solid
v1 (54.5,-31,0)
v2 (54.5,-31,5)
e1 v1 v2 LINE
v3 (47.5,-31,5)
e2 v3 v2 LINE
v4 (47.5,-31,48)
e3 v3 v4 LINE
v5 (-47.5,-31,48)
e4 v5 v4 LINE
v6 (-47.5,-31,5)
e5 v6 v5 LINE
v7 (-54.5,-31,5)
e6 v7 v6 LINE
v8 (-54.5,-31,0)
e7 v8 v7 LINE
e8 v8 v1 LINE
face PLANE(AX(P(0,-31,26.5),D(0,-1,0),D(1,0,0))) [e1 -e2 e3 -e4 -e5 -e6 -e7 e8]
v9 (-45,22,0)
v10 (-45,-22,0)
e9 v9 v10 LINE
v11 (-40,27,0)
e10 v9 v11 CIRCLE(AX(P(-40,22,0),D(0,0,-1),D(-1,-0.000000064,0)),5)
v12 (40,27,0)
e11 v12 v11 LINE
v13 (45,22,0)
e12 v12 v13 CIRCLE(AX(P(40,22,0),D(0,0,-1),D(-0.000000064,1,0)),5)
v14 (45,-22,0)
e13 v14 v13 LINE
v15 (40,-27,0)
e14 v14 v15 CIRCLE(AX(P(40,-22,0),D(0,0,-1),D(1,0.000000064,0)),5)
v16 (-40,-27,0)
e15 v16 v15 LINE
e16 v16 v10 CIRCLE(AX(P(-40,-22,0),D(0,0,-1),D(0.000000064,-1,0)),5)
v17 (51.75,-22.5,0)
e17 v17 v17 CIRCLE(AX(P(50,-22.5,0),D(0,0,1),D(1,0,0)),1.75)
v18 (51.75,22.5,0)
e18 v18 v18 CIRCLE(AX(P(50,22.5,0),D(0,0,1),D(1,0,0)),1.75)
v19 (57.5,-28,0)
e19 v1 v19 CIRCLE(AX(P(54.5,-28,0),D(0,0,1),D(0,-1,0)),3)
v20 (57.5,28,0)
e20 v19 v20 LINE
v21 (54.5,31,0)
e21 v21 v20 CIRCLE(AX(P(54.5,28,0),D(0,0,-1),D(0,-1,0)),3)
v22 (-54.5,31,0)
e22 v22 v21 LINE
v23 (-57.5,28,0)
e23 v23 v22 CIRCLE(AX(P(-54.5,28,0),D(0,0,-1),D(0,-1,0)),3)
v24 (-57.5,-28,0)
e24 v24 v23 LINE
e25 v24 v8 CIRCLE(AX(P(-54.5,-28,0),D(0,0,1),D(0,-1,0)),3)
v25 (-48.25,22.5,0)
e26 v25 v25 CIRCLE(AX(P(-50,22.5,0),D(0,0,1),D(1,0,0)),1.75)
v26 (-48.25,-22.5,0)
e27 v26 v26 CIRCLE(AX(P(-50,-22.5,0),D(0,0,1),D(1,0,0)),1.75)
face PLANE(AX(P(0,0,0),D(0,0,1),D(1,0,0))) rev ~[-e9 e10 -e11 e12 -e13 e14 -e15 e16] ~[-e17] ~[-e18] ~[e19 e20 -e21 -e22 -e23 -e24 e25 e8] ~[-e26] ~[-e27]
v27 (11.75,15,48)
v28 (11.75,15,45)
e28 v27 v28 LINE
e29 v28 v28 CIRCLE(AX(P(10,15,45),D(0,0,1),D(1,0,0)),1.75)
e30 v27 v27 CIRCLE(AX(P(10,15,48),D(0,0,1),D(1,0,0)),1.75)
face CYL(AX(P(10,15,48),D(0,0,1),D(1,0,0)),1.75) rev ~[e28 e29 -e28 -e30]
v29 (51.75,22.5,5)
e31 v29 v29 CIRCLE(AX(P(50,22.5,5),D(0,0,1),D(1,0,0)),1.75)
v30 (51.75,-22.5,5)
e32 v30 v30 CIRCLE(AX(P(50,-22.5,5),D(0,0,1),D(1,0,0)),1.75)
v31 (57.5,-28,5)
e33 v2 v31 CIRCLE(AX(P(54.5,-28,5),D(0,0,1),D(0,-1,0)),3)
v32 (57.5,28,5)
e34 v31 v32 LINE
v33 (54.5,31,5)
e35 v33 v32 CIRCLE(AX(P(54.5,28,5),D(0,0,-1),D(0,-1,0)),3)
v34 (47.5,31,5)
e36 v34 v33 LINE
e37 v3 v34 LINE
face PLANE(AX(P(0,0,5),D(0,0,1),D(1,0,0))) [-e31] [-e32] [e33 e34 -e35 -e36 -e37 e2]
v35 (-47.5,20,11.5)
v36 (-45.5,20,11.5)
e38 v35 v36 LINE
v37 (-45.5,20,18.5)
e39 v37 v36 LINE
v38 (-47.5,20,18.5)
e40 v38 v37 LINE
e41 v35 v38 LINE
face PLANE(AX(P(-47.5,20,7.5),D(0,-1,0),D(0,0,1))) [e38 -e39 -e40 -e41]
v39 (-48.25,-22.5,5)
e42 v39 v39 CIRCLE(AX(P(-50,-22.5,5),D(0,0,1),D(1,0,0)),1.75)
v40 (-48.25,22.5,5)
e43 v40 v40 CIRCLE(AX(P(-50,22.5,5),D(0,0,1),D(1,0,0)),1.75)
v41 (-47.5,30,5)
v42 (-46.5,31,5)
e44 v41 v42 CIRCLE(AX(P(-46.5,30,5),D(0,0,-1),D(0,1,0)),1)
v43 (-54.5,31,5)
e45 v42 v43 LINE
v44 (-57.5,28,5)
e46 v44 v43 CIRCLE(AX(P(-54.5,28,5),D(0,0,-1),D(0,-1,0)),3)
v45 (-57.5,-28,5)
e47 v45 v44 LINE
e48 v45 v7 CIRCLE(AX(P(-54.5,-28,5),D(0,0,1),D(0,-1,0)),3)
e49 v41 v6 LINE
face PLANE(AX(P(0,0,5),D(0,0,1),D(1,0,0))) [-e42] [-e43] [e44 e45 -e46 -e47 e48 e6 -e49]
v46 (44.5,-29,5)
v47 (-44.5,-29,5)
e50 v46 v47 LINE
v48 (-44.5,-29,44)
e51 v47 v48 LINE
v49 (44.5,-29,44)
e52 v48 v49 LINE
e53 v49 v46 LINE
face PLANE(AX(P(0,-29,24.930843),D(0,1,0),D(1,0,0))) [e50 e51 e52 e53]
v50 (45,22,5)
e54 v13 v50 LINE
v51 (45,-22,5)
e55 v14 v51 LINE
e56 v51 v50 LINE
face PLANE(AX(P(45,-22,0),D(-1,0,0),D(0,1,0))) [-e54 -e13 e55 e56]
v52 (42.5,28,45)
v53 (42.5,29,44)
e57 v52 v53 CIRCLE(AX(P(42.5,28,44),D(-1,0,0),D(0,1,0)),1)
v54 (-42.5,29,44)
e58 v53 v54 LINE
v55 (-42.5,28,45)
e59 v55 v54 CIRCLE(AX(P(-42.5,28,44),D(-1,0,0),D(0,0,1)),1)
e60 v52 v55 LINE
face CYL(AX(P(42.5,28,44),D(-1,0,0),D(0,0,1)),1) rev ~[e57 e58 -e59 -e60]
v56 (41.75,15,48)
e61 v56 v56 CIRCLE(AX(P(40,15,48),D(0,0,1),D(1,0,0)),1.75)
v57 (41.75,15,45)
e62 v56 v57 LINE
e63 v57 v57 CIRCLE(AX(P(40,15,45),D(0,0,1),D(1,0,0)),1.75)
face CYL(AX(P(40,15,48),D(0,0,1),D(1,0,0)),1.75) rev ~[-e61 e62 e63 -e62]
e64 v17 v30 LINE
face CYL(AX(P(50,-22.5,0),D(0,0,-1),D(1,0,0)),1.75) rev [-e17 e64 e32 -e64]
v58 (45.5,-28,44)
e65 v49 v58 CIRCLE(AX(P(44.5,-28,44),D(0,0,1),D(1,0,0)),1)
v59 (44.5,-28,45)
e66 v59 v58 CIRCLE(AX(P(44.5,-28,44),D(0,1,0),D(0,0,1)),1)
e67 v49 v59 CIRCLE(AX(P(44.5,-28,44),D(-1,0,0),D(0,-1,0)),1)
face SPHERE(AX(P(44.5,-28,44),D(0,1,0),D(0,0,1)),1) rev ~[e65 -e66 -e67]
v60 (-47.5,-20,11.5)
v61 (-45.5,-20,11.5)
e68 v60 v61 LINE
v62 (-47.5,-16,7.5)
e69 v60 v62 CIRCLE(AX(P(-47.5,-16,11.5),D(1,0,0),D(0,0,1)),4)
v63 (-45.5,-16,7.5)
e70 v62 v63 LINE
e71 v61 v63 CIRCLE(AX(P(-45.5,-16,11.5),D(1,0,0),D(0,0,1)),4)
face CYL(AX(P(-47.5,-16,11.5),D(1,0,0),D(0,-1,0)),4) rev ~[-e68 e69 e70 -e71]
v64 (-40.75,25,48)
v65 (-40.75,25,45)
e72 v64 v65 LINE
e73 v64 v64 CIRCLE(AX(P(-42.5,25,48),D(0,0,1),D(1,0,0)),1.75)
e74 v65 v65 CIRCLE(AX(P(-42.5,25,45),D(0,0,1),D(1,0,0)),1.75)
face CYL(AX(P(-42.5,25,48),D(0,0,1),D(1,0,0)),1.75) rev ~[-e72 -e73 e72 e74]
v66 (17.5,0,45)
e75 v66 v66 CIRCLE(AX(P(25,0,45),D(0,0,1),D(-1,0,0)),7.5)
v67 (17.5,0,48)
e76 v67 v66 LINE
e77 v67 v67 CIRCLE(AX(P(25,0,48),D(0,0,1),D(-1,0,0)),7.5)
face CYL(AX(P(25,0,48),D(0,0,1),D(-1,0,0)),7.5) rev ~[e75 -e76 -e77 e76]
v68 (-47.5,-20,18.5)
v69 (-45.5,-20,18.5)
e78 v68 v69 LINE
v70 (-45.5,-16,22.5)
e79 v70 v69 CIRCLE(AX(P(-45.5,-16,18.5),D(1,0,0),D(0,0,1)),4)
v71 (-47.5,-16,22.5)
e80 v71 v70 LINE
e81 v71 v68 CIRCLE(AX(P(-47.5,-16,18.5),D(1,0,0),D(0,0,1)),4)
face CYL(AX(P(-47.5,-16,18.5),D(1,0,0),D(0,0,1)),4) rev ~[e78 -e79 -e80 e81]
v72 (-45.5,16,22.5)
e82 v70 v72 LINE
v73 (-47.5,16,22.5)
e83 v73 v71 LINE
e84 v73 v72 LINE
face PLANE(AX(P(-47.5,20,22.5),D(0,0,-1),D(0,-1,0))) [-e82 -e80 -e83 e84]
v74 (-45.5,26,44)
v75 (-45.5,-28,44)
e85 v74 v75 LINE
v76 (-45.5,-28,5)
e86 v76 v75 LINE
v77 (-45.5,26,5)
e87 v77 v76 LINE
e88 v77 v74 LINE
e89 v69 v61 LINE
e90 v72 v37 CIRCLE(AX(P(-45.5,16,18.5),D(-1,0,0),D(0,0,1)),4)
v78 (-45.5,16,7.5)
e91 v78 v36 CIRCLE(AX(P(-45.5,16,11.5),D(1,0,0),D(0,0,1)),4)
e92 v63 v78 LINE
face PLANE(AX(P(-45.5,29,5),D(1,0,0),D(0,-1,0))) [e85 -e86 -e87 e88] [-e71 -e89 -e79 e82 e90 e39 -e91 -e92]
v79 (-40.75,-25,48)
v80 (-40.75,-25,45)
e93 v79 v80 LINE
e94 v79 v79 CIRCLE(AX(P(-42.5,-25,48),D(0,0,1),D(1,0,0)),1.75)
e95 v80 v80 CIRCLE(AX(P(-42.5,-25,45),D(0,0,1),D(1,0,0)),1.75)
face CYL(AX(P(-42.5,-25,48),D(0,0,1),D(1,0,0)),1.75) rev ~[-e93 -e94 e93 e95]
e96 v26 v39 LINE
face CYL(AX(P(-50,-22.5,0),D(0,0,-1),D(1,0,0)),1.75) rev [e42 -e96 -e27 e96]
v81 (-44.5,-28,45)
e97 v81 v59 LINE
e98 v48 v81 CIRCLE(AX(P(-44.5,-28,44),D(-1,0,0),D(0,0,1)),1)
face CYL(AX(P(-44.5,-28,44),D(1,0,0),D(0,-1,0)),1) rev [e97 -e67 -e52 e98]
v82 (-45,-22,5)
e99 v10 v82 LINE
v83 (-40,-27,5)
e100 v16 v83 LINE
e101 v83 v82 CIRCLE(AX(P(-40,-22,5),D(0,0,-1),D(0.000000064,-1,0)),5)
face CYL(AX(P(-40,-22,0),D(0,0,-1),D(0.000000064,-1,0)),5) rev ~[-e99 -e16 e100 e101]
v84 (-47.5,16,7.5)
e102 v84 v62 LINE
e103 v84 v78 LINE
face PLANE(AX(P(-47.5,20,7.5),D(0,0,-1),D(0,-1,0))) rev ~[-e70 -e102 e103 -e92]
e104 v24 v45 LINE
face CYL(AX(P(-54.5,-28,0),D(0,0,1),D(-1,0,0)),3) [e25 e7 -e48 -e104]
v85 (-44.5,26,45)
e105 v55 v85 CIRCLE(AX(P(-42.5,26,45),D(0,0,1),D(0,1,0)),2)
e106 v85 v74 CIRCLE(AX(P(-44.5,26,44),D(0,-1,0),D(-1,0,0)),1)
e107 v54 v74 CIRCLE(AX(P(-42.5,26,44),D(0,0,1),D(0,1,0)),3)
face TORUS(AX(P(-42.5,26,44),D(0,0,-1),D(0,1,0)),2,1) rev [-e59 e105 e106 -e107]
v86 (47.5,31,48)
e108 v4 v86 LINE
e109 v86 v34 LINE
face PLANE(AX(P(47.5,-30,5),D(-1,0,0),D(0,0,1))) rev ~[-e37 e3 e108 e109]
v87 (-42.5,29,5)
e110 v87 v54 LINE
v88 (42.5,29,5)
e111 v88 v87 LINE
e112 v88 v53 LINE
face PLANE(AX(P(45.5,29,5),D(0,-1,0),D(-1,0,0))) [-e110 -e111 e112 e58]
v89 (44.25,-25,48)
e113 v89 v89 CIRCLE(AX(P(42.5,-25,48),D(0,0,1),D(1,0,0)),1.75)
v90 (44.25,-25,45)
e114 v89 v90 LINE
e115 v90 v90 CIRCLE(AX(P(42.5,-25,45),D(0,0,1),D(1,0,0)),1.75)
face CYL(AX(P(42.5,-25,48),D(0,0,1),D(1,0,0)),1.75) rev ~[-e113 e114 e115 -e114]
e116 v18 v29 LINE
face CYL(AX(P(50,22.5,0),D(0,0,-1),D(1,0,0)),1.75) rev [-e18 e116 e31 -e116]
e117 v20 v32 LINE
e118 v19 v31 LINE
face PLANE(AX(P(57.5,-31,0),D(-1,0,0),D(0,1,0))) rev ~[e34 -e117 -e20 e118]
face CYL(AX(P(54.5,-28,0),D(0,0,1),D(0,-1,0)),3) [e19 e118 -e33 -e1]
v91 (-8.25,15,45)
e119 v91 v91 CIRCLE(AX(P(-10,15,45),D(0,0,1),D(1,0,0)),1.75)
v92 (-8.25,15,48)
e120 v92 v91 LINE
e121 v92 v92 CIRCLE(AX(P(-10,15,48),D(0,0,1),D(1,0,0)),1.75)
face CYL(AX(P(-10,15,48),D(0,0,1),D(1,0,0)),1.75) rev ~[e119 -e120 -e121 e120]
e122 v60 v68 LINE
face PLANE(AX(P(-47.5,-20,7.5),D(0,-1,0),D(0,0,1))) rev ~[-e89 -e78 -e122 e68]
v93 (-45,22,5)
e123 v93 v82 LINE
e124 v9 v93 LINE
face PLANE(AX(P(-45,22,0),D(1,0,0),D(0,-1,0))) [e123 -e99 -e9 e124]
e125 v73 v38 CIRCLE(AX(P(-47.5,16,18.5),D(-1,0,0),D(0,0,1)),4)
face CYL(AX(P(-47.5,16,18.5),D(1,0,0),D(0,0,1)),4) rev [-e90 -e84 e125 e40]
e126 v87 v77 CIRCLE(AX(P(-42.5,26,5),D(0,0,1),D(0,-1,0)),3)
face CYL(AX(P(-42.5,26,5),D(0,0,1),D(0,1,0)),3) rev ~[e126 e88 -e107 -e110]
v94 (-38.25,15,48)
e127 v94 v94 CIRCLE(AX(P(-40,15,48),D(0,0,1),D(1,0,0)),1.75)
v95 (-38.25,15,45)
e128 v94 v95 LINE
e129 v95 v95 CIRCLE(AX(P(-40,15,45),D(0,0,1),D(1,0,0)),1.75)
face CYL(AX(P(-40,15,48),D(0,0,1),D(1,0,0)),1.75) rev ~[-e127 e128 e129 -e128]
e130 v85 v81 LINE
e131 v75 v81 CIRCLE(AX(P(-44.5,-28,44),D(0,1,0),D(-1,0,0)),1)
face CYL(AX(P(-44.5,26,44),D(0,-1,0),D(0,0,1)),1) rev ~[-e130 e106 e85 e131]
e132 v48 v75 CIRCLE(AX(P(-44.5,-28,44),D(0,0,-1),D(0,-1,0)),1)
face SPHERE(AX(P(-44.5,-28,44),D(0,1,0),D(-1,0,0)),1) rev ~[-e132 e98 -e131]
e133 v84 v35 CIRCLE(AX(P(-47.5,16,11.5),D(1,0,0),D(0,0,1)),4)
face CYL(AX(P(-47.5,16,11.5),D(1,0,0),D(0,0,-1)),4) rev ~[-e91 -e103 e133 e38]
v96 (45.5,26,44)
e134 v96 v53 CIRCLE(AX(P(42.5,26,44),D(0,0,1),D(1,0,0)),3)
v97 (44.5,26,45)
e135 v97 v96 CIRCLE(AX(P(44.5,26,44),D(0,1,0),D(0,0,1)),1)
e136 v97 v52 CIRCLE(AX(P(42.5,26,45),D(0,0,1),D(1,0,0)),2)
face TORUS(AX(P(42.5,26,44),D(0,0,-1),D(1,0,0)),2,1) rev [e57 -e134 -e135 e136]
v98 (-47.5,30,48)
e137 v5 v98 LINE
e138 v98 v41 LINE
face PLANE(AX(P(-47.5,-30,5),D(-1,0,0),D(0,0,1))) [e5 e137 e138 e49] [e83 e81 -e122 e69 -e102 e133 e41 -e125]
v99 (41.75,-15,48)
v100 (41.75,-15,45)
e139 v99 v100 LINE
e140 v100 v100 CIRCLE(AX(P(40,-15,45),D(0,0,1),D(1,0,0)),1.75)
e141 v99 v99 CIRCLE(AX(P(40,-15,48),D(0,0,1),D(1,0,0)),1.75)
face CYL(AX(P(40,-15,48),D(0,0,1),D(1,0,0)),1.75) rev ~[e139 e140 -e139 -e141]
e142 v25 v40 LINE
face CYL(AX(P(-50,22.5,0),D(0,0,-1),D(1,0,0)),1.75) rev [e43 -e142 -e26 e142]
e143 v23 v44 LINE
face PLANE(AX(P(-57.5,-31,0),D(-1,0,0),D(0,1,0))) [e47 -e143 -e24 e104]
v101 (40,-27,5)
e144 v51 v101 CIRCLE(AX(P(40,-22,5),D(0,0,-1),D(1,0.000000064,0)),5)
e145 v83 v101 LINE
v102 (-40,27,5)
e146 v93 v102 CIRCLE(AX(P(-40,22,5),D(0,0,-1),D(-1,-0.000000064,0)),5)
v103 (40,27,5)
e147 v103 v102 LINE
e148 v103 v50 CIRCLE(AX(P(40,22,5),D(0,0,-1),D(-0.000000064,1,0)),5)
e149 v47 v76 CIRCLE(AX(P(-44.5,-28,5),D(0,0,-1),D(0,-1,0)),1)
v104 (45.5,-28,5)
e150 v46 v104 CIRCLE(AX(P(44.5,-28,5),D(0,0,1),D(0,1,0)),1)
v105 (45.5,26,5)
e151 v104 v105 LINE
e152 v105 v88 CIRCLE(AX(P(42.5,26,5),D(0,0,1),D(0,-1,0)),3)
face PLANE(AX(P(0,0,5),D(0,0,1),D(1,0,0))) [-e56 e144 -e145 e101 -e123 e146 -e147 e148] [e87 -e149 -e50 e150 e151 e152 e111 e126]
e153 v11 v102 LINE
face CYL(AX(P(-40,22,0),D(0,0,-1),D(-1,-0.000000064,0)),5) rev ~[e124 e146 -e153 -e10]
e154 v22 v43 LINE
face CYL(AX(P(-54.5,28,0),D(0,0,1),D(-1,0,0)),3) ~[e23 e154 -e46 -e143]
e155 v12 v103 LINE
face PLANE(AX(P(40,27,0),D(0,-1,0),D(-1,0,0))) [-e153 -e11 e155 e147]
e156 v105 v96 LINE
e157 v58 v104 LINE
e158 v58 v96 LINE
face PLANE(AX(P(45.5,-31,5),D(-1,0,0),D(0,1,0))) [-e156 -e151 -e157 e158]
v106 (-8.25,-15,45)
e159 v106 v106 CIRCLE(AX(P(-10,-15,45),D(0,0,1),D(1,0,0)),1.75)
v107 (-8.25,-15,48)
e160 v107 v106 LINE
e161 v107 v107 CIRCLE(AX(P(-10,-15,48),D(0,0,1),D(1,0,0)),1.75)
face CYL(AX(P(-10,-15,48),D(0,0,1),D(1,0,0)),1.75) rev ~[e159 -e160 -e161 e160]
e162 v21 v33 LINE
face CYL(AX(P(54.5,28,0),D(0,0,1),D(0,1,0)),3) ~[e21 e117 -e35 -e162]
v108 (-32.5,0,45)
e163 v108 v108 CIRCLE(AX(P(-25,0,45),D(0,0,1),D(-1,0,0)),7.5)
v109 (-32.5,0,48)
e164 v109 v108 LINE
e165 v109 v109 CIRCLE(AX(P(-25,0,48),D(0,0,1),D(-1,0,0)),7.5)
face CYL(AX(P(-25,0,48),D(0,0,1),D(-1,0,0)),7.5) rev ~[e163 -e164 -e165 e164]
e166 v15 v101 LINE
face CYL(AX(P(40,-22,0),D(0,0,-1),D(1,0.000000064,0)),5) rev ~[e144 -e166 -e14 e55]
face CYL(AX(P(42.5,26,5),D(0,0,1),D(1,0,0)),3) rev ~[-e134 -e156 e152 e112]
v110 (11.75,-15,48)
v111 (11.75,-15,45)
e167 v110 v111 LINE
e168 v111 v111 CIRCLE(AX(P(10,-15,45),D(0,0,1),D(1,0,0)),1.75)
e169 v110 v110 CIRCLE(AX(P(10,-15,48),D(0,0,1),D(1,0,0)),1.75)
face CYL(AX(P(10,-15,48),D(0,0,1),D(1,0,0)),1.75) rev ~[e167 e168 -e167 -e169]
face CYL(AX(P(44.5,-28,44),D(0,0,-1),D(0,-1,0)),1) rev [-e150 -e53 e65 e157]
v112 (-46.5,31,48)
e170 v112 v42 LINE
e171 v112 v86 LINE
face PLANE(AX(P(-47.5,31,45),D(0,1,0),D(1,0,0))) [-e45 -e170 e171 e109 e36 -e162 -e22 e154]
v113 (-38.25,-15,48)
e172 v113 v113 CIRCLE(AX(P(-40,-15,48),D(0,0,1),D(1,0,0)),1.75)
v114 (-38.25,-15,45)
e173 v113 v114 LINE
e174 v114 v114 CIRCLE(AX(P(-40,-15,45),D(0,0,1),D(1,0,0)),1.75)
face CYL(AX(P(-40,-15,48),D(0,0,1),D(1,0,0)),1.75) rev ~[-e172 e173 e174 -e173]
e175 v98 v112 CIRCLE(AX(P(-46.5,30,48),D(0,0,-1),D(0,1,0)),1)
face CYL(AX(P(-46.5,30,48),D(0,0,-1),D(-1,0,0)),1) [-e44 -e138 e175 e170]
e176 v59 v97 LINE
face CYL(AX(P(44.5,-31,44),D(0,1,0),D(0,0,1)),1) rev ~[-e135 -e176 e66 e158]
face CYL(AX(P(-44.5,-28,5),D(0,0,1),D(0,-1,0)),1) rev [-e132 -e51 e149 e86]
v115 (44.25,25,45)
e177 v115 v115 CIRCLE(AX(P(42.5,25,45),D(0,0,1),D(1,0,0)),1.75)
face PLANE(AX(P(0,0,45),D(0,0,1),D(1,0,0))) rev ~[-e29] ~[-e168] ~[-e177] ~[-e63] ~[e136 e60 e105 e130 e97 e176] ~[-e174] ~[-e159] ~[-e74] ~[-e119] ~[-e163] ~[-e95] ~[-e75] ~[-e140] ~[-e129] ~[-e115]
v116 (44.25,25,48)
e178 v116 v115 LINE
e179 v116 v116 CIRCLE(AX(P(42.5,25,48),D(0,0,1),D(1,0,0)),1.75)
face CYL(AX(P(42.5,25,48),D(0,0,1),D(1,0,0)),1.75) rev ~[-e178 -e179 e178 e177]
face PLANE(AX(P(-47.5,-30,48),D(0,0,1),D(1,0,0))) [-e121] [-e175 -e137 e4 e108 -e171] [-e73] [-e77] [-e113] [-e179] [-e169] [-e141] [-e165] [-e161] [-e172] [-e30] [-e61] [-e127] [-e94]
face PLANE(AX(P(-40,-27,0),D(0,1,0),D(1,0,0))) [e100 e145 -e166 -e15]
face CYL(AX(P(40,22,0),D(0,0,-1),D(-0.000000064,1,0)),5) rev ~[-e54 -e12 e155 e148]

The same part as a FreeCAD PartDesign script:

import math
import FreeCAD as App
import Part
import Sketcher

V = App.Vector
Q = App.Units.Quantity


def edges_at(feature, points):
    """Names of the edges that pass closest to the given points."""
    edges = feature.Shape.Edges
    near = lambda p: min(range(len(edges)), key=lambda i: edges[i].distToShape(Part.Vertex(*p))[0])
    return sorted({f"Edge{near(p) + 1}" for p in points})

doc = App.newDocument("Part")
body = doc.addObject("PartDesign::Body", "Body")

# Sketch on XY plane
sketch1 = body.newObject("Sketcher::SketchObject", "Sketch")
sketch1.AttachmentSupport = (doc.getObject("XY_Plane"), [""])
sketch1.MapMode = "FlatFace"
sketch1.addGeometry([
    Part.LineSegment(V(-57.5, 31, 0), V(-57.5, -31, 0)),  # 0
    Part.LineSegment(V(-57.5, -31, 0), V(57.5, -31, 0)),  # 1
    Part.LineSegment(V(57.5, -31, 0), V(57.5, 31, 0)),  # 2
    Part.LineSegment(V(57.5, 31, 0), V(-57.5, 31, 0)),  # 3
    Part.Circle(V(-50, -22.5, 0), V(0, 0, 1), 1.8),  # 4
    Part.Circle(V(50, -22.5, 0), V(0, 0, 1), 1.8),  # 5
    Part.ArcOfCircle(Part.Circle(V(-40.5, 12, 0), V(0, 0, 1), 3), math.radians(90), math.radians(180)),  # 6
    Part.LineSegment(V(-40.5, 15, 0), V(-31.5, 15, 0)),  # 7
    Part.ArcOfCircle(Part.Circle(V(-31.5, 12, 0), V(0, 0, 1), 3), math.radians(0), math.radians(90)),  # 8
    Part.LineSegment(V(-28.5, 12, 0), V(-28.5, -12, 0)),  # 9
    Part.ArcOfCircle(Part.Circle(V(-31.5, -12, 0), V(0, 0, 1), 3), math.radians(-90), math.radians(0)),  # 10
    Part.LineSegment(V(-31.5, -15, 0), V(-40.5, -15, 0)),  # 11
    Part.ArcOfCircle(Part.Circle(V(-40.5, -12, 0), V(0, 0, 1), 3), math.radians(-180), math.radians(-90)),  # 12
    Part.LineSegment(V(-43.5, -12, 0), V(-43.5, 12, 0)),  # 13
    Part.Circle(V(-50, 22.5, 0), V(0, 0, 1), 1.8),  # 14
    Part.Circle(V(50, 22.5, 0), V(0, 0, 1), 1.8),  # 15
], False)
sketch1.addConstraint([
    Sketcher.Constraint("Coincident", 0, 2, 1, 1),
    Sketcher.Constraint("Coincident", 1, 2, 2, 1),
    Sketcher.Constraint("Coincident", 2, 2, 3, 1),
    Sketcher.Constraint("Coincident", 3, 2, 0, 1),
    Sketcher.Constraint("Tangent", 6, 1, 7, 1),
    Sketcher.Constraint("Tangent", 7, 2, 8, 2),
    Sketcher.Constraint("Tangent", 8, 1, 9, 1),
    Sketcher.Constraint("Tangent", 9, 2, 10, 2),
    Sketcher.Constraint("Tangent", 10, 1, 11, 1),
    Sketcher.Constraint("Tangent", 11, 2, 12, 2),
    Sketcher.Constraint("Tangent", 12, 1, 13, 1),
    Sketcher.Constraint("Tangent", 13, 2, 6, 2),
    Sketcher.Constraint("Vertical", 0),
    Sketcher.Constraint("Horizontal", 1),
    Sketcher.Constraint("Vertical", 2),
    Sketcher.Constraint("Horizontal", 3),
    Sketcher.Constraint("Horizontal", 7),
    Sketcher.Constraint("Vertical", 9),
    Sketcher.Constraint("Horizontal", 11),
    Sketcher.Constraint("Vertical", 13),
    Sketcher.Constraint("Equal", 4, 5),
    Sketcher.Constraint("Equal", 6, 8),
    Sketcher.Constraint("Equal", 8, 10),
    Sketcher.Constraint("Equal", 10, 12),
    Sketcher.Constraint("Equal", 5, 14),
    Sketcher.Constraint("Equal", 14, 15),
    Sketcher.Constraint("Symmetric", 5, 3, 14, 3, -1, 1),
    Sketcher.Constraint("Symmetric", 4, 3, 15, 3, -1, 1),
    Sketcher.Constraint("Symmetric", 0, 2, 2, 2, -1, 1),
    Sketcher.Constraint("Symmetric", 4, 3, 5, 3, -2),
    Sketcher.Constraint("Radius", 6, Q("3.000001 mm")),
    Sketcher.Constraint("Diameter", 4, Q("3.5 mm")),
    Sketcher.Constraint("DistanceX", 1, 1, 1, 2, Q("115 mm")),
    Sketcher.Constraint("DistanceX", 7, 1, 7, 2, Q("9 mm")),
    Sketcher.Constraint("DistanceY", 0, 2, 0, 1, Q("62 mm")),
    Sketcher.Constraint("DistanceY", 9, 2, 9, 1, Q("24 mm")),
    Sketcher.Constraint("DistanceX", 4, 3, -1, 1, Q("50 mm")),
    Sketcher.Constraint("DistanceY", -1, 1, 6, 3, Q("11.999999 mm")),
    Sketcher.Constraint("DistanceY", 4, 3, 14, 3, Q("45 mm")),
    Sketcher.Constraint("DistanceX", 0, 2, 12, 3, Q("17.000001 mm")),
])
pad1 = body.newObject("PartDesign::Pad", "Pad")
pad1.Profile = sketch1
pad1.Length = 5
doc.recompute()

fillet = body.newObject("PartDesign::Fillet", "Fillet")
fillet.Base = (pad1, edges_at(pad1, [
    (-36, -15, 0),
    (-29.379, -14.121, 0),
    (-28.5, 0, 0),
    (-42.621, -14.121, 0),
    (-43.5, 0, 0),
    (-42.621, 14.121, 0),
    (-36, 15, 0),
    (-29.379, 14.121, 0),
]))
fillet.Radius = 1
doc.recompute()

fillet2 = body.newObject("PartDesign::Fillet", "Fillet001")
fillet2.Base = (fillet, edges_at(fillet, [
    (-43.5, 0, 5),
    (-42.621, -14.121, 5),
    (-36, -15, 5),
    (-29.379, -14.121, 5),
    (-28.5, 0, 5),
    (-29.379, 14.121, 5),
    (-36, 15, 5),
    (-42.621, 14.121, 5),
]))
fillet2.Radius = 1
doc.recompute()

fillet3 = body.newObject("PartDesign::Fillet", "Fillet002")
fillet3.Base = (fillet2, edges_at(fillet2, [
    (-57.5, -31, 2.5),
    (-57.5, 31, 2.5),
    (57.5, -31, 2.5),
    (57.5, 31, 2.5),
]))
fillet3.Radius = 3

# Sketch on XY plane
sketch2 = body.newObject("Sketcher::SketchObject", "Sketch001")
sketch2.AttachmentSupport = (doc.getObject("XY_Plane"), [""])
sketch2.MapMode = "FlatFace"
sketch2.AttachmentOffset = App.Placement(V(0, 0, 5), App.Rotation())
sketch2.addGeometry([
    Part.LineSegment(V(47.5, 31, 0), V(-47.5, 31, 0)),  # 0
    Part.LineSegment(V(-47.5, 31, 0), V(-47.5, -31, 0)),  # 1
    Part.LineSegment(V(-47.5, -31, 0), V(-45.5, -31, 0)),  # 2
    Part.LineSegment(V(-45.5, -31, 0), V(-45.5, 29, 0)),  # 3
    Part.LineSegment(V(-45.5, 29, 0), V(45.5, 29, 0)),  # 4
    Part.LineSegment(V(45.5, 29, 0), V(45.5, -31, 0)),  # 5
    Part.LineSegment(V(45.5, -31, 0), V(47.5, -31, 0)),  # 6
    Part.LineSegment(V(47.5, -31, 0), V(47.5, 31, 0)),  # 7
], False)
sketch2.addConstraint([
    Sketcher.Constraint("Coincident", 0, 2, 1, 1),
    Sketcher.Constraint("Coincident", 1, 2, 2, 1),
    Sketcher.Constraint("Coincident", 2, 2, 3, 1),
    Sketcher.Constraint("Coincident", 3, 2, 4, 1),
    Sketcher.Constraint("Coincident", 4, 2, 5, 1),
    Sketcher.Constraint("Coincident", 5, 2, 6, 1),
    Sketcher.Constraint("Coincident", 6, 2, 7, 1),
    Sketcher.Constraint("Coincident", 7, 2, 0, 1),
    Sketcher.Constraint("Horizontal", 0),
    Sketcher.Constraint("Vertical", 1),
    Sketcher.Constraint("Horizontal", 2),
    Sketcher.Constraint("Vertical", 3),
    Sketcher.Constraint("Horizontal", 4),
    Sketcher.Constraint("Vertical", 5),
    Sketcher.Constraint("Horizontal", 6),
    Sketcher.Constraint("Vertical", 7),
    Sketcher.Constraint("Symmetric", 0, 2, 6, 2, -1, 1),
    Sketcher.Constraint("Symmetric", 2, 2, 5, 2, -2),
    Sketcher.Constraint("DistanceX", 0, 2, 0, 1, Q("95 mm")),
    Sketcher.Constraint("DistanceX", 2, 1, 2, 2, Q("2 mm")),
    Sketcher.Constraint("DistanceY", 1, 2, 1, 1, Q("62 mm")),
    Sketcher.Constraint("DistanceY", 3, 1, 3, 2, Q("60 mm")),
])
pad2 = body.newObject("PartDesign::Pad", "Pad001")
pad2.Profile = sketch2
pad2.Length = 40

# Sketch on XY plane
sketch3 = body.newObject("Sketcher::SketchObject", "Sketch002")
sketch3.AttachmentSupport = (doc.getObject("XY_Plane"), [""])
sketch3.MapMode = "FlatFace"
sketch3.AttachmentOffset = App.Placement(V(0, 0, 45), App.Rotation())
sketch3.addGeometry([
    Part.LineSegment(V(-48, 31, 0), V(-48, -31, 0)),
    Part.LineSegment(V(-48, -31, 0), V(48, -31, 0)),
    Part.LineSegment(V(48, -31, 0), V(48, 31, 0)),
    Part.LineSegment(V(48, 31, 0), V(-48, 31, 0)),
], False)
sketch3.addConstraint([
    Sketcher.Constraint("Coincident", 0, 2, 1, 1),
    Sketcher.Constraint("Coincident", 1, 2, 2, 1),
    Sketcher.Constraint("Coincident", 2, 2, 3, 1),
    Sketcher.Constraint("Coincident", 3, 2, 0, 1),
    Sketcher.Constraint("Vertical", 0),
    Sketcher.Constraint("Horizontal", 1),
    Sketcher.Constraint("Vertical", 2),
    Sketcher.Constraint("Horizontal", 3),
    Sketcher.Constraint("Symmetric", 0, 2, 2, 2, -1, 1),
    Sketcher.Constraint("DistanceX", 1, 1, 1, 2, Q("95 mm")),
    Sketcher.Constraint("DistanceY", 0, 2, 0, 1, Q("62 mm")),
])
pad3 = body.newObject("PartDesign::Pad", "Pad002")
pad3.Profile = sketch3
pad3.Length = 3
doc.recompute()

fillet4 = body.newObject("PartDesign::Fillet", "Fillet003")
fillet4.Base = (pad3, edges_at(pad3, [(-45.5, 29, 25), (45.5, 29, 25)]))
fillet4.Radius = 3
doc.recompute()

fillet5 = body.newObject("PartDesign::Fillet", "Fillet004")
fillet5.Base = (fillet4, edges_at(fillet4, [
    (-47.5, 31, 26.5),
    (-45.5, -2.5, 45),
    (-44.621, 28.121, 45),
    (0, 29, 45),
    (44.621, 28.121, 45),
    (45.5, -2.5, 45),
]))
fillet5.Radius = 1

# Sketch on YZ plane
sketch4 = body.newObject("Sketcher::SketchObject", "Sketch003")
sketch4.AttachmentSupport = (doc.getObject("YZ_Plane"), [""])
sketch4.MapMode = "FlatFace"
sketch4.AttachmentOffset = App.Placement(V(0, 0, -47.5), App.Rotation())
sketch4.addGeometry([
    Part.LineSegment(V(20, 22, 0), V(20, 8, 0)),
    Part.LineSegment(V(20, 8, 0), V(-20, 8, 0)),
    Part.LineSegment(V(-20, 8, 0), V(-20, 22, 0)),
    Part.LineSegment(V(-20, 22, 0), V(20, 22, 0)),
], False)
sketch4.addConstraint([
    Sketcher.Constraint("Coincident", 0, 2, 1, 1),
    Sketcher.Constraint("Coincident", 1, 2, 2, 1),
    Sketcher.Constraint("Coincident", 2, 2, 3, 1),
    Sketcher.Constraint("Coincident", 3, 2, 0, 1),
    Sketcher.Constraint("Vertical", 0),
    Sketcher.Constraint("Horizontal", 1),
    Sketcher.Constraint("Vertical", 2),
    Sketcher.Constraint("Horizontal", 3),
    Sketcher.Constraint("DistanceX", 1, 2, 1, 1, Q("40 mm")),
    Sketcher.Constraint("DistanceY", 0, 2, 0, 1, Q("15 mm")),
    Sketcher.Constraint("DistanceX", -1, 1, 0, 2, Q("20 mm")),
    Sketcher.Constraint("DistanceY", -1, 1, 0, 2, Q("7.5 mm")),
])
pocket1 = body.newObject("PartDesign::Pocket", "Pocket")
pocket1.Profile = sketch4
pocket1.Length = 5
pocket1.Reversed = True

# Sketch on XY plane
sketch5 = body.newObject("Sketcher::SketchObject", "Sketch004")
sketch5.AttachmentSupport = (doc.getObject("XY_Plane"), [""])
sketch5.MapMode = "FlatFace"
sketch5.AttachmentOffset = App.Placement(V(0, 0, 48), App.Rotation())
sketch5.addGeometry([
    Part.Circle(V(-40, -15, 0), V(0, 0, 1), 1.8),  # 0
    Part.Circle(V(-40, 15, 0), V(0, 0, 1), 1.8),  # 1
    Part.Circle(V(-10, 15, 0), V(0, 0, 1), 1.8),  # 2
    Part.Circle(V(10, 15, 0), V(0, 0, 1), 1.8),  # 3
    Part.Circle(V(40, 15, 0), V(0, 0, 1), 1.8),  # 4
    Part.Circle(V(40, -15, 0), V(0, 0, 1), 1.8),  # 5
    Part.Circle(V(10, -15, 0), V(0, 0, 1), 1.8),  # 6
    Part.Circle(V(-10, -15, 0), V(0, 0, 1), 1.8),  # 7
    Part.Circle(V(-42.5, -25, 0), V(0, 0, 1), 1.8),  # 8
    Part.Circle(V(-42.5, 25, 0), V(0, 0, 1), 1.8),  # 9
    Part.Circle(V(42.5, 25, 0), V(0, 0, 1), 1.8),  # 10
    Part.Circle(V(42.5, -25, 0), V(0, 0, 1), 1.8),  # 11
    Part.Circle(V(-25, 0, 0), V(0, 0, 1), 7.5),  # 12
    Part.Circle(V(25, 0, 0), V(0, 0, 1), 7.5),  # 13
], False)
sketch5.addConstraint([
    Sketcher.Constraint("Equal", 0, 1),
    Sketcher.Constraint("Equal", 1, 2),
    Sketcher.Constraint("Equal", 2, 3),
    Sketcher.Constraint("Equal", 3, 4),
    Sketcher.Constraint("Equal", 4, 5),
    Sketcher.Constraint("Equal", 5, 6),
    Sketcher.Constraint("Equal", 6, 7),
    Sketcher.Constraint("Equal", 7, 8),
    Sketcher.Constraint("Equal", 8, 9),
    Sketcher.Constraint("Equal", 9, 10),
    Sketcher.Constraint("Equal", 10, 11),
    Sketcher.Constraint("Equal", 12, 13),
    Sketcher.Constraint("Symmetric", 0, 3, 4, 3, -1, 1),
    Sketcher.Constraint("Symmetric", 1, 3, 5, 3, -1, 1),
    Sketcher.Constraint("Symmetric", 2, 3, 6, 3, -1, 1),
    Sketcher.Constraint("Symmetric", 3, 3, 7, 3, -1, 1),
    Sketcher.Constraint("Symmetric", 8, 3, 10, 3, -1, 1),
    Sketcher.Constraint("Symmetric", 9, 3, 11, 3, -1, 1),
    Sketcher.Constraint("Symmetric", 12, 3, 13, 3, -1, 1),
    Sketcher.Constraint("Symmetric", 2, 3, 3, 3, -2),
    Sketcher.Constraint("Symmetric", 1, 3, 4, 3, -2),
    Sketcher.Constraint("Symmetric", 9, 3, 10, 3, -2),
    Sketcher.Constraint("PointOnObject", 12, 3, -1),
    Sketcher.Constraint("Horizontal", 1, 3, 2, 3),
    Sketcher.Constraint("Diameter", 12, Q("15 mm")),
    Sketcher.Constraint("Diameter", 0, Q("3.5 mm")),
    Sketcher.Constraint("DistanceX", 0, 3, -1, 1, Q("40 mm")),
    Sketcher.Constraint("DistanceY", 0, 3, -1, 1, Q("15 mm")),
    Sketcher.Constraint("DistanceX", 2, 3, -1, 1, Q("10 mm")),
    Sketcher.Constraint("DistanceY", 8, 3, -1, 1, Q("25 mm")),
    Sketcher.Constraint("DistanceX", 12, 3, -1, 1, Q("25 mm")),
    Sketcher.Constraint("DistanceX", 8, 3, -1, 1, Q("42.5 mm")),
])
pocket2 = body.newObject("PartDesign::Pocket", "Pocket001")
pocket2.Profile = sketch5
pocket2.Length = 5
doc.recompute()

fillet6 = body.newObject("PartDesign::Fillet", "Fillet005")
fillet6.Base = (pocket2, edges_at(pocket2, [
    (-46.5, 20, 22.5),
    (-46.5, 20, 7.5),
    (-46.5, -20, 22.5),
    (-46.5, -20, 7.5),
]))
fillet6.Radius = 4

# Sketch on XY plane
sketch6 = body.newObject("Sketcher::SketchObject", "Sketch005")
sketch6.AttachmentSupport = (doc.getObject("XY_Plane"), [""])
sketch6.MapMode = "FlatFace"
sketch6.addGeometry([
    Part.ArcOfCircle(Part.Circle(V(-40, -22, 0), V(0, 0, 1), 5), math.radians(180), math.radians(270)),  # 0
    Part.LineSegment(V(-45, -22, 0), V(-45, 22, 0)),  # 1
    Part.ArcOfCircle(Part.Circle(V(-40, 22, 0), V(0, 0, 1), 5), math.radians(90), math.radians(180)),  # 2
    Part.LineSegment(V(-40, 27, 0), V(40, 27, 0)),  # 3
    Part.ArcOfCircle(Part.Circle(V(40, 22, 0), V(0, 0, 1), 5), math.radians(0), math.radians(90)),  # 4
    Part.LineSegment(V(45, 22, 0), V(45, -22, 0)),  # 5
    Part.ArcOfCircle(Part.Circle(V(40, -22, 0), V(0, 0, 1), 5), math.radians(-90), math.radians(0)),  # 6
    Part.LineSegment(V(40, -27, 0), V(-40, -27, 0)),  # 7
], False)
sketch6.addConstraint([
    Sketcher.Constraint("Tangent", 0, 1, 1, 1),
    Sketcher.Constraint("Tangent", 1, 2, 2, 2),
    Sketcher.Constraint("Tangent", 2, 1, 3, 1),
    Sketcher.Constraint("Tangent", 3, 2, 4, 2),
    Sketcher.Constraint("Tangent", 4, 1, 5, 1),
    Sketcher.Constraint("Tangent", 5, 2, 6, 2),
    Sketcher.Constraint("Tangent", 6, 1, 7, 1),
    Sketcher.Constraint("Tangent", 7, 2, 0, 2),
    Sketcher.Constraint("Vertical", 1),
    Sketcher.Constraint("Horizontal", 3),
    Sketcher.Constraint("Vertical", 5),
    Sketcher.Constraint("Horizontal", 7),
    Sketcher.Constraint("Equal", 0, 2),
    Sketcher.Constraint("Equal", 2, 4),
    Sketcher.Constraint("Equal", 4, 6),
    Sketcher.Constraint("Symmetric", 0, 3, 4, 3, -1, 1),
    Sketcher.Constraint("Radius", 0, Q("5 mm")),
    Sketcher.Constraint("DistanceX", 3, 1, 3, 2, Q("80 mm")),
    Sketcher.Constraint("DistanceY", 1, 1, 1, 2, Q("44 mm")),
])
pocket3 = body.newObject("PartDesign::Pocket", "Pocket002")
pocket3.Profile = sketch6
pocket3.Length = 5
pocket3.Reversed = True

# Sketch on XZ plane
sketch7 = body.newObject("Sketcher::SketchObject", "Sketch006")
sketch7.AttachmentSupport = (doc.getObject("XZ_Plane"), [""])
sketch7.MapMode = "FlatFace"
sketch7.AttachmentOffset = App.Placement(V(0, 0, 31), App.Rotation())
sketch7.addGeometry([
    Part.LineSegment(V(-48, 48, 0), V(-48, 5, 0)),
    Part.LineSegment(V(-48, 5, 0), V(48, 5, 0)),
    Part.LineSegment(V(48, 5, 0), V(48, 48, 0)),
    Part.LineSegment(V(48, 48, 0), V(-48, 48, 0)),
], False)
sketch7.addConstraint([
    Sketcher.Constraint("Coincident", 0, 2, 1, 1),
    Sketcher.Constraint("Coincident", 1, 2, 2, 1),
    Sketcher.Constraint("Coincident", 2, 2, 3, 1),
    Sketcher.Constraint("Coincident", 3, 2, 0, 1),
    Sketcher.Constraint("Vertical", 0),
    Sketcher.Constraint("Horizontal", 1),
    Sketcher.Constraint("Vertical", 2),
    Sketcher.Constraint("Horizontal", 3),
    Sketcher.Constraint("DistanceX", 1, 1, 1, 2, Q("95 mm")),
    Sketcher.Constraint("DistanceY", 0, 2, 0, 1, Q("43 mm")),
    Sketcher.Constraint("DistanceY", -1, 1, 0, 2, Q("5 mm")),
    Sketcher.Constraint("DistanceX", 0, 2, -1, 1, Q("47.5 mm")),
])
pocket4 = body.newObject("PartDesign::Pocket", "Pocket003")
pocket4.Profile = sketch7
pocket4.Length = 1

# Sketch on XZ plane
sketch8 = body.newObject("Sketcher::SketchObject", "Sketch007")
sketch8.AttachmentSupport = (doc.getObject("XZ_Plane"), [""])
sketch8.MapMode = "FlatFace"
sketch8.AttachmentOffset = App.Placement(V(0, 0, 30), App.Rotation())
sketch8.addGeometry([
    Part.LineSegment(V(-48, 48, 0), V(-48, 5, 0)),
    Part.LineSegment(V(-48, 5, 0), V(48, 5, 0)),
    Part.LineSegment(V(48, 5, 0), V(48, 48, 0)),
    Part.LineSegment(V(48, 48, 0), V(-48, 48, 0)),
], False)
sketch8.addConstraint([
    Sketcher.Constraint("Coincident", 0, 2, 1, 1),
    Sketcher.Constraint("Coincident", 1, 2, 2, 1),
    Sketcher.Constraint("Coincident", 2, 2, 3, 1),
    Sketcher.Constraint("Coincident", 3, 2, 0, 1),
    Sketcher.Constraint("Vertical", 0),
    Sketcher.Constraint("Horizontal", 1),
    Sketcher.Constraint("Vertical", 2),
    Sketcher.Constraint("Horizontal", 3),
    Sketcher.Constraint("DistanceX", 1, 1, 1, 2, Q("95 mm")),
    Sketcher.Constraint("DistanceY", 0, 2, 0, 1, Q("43 mm")),
    Sketcher.Constraint("DistanceY", -1, 1, 0, 2, Q("5 mm")),
    Sketcher.Constraint("DistanceX", 0, 2, -1, 1, Q("47.5 mm")),
])
pad4 = body.newObject("PartDesign::Pad", "Pad003")
pad4.Profile = sketch8
pad4.Length = 1

# Sketch on XZ plane
sketch9 = body.newObject("Sketcher::SketchObject", "Sketch008")
sketch9.AttachmentSupport = (doc.getObject("XZ_Plane"), [""])
sketch9.MapMode = "FlatFace"
sketch9.AttachmentOffset = App.Placement(V(0, 0, 30), App.Rotation())
sketch9.addGeometry([
    Part.LineSegment(V(45.5, 44, 0), V(45.5, 5, 0)),  # 0
    Part.LineSegment(V(45.5, 5, 0), V(-45.5, 5, 0)),  # 1
    Part.LineSegment(V(-45.5, 5, 0), V(-45.5, 44, 0)),  # 2
    Part.ArcOfCircle(Part.Circle(V(-44.5, 44, 0), V(0, 0, 1), 1), math.radians(90), math.radians(180)),  # 3
    Part.LineSegment(V(-44.5, 45, 0), V(44.5, 45, 0)),  # 4
    Part.ArcOfCircle(Part.Circle(V(44.5, 44, 0), V(0, 0, 1), 1), math.radians(0), math.radians(90)),  # 5
], False)
sketch9.addConstraint([
    Sketcher.Constraint("Coincident", 0, 2, 1, 1),
    Sketcher.Constraint("Coincident", 1, 2, 2, 1),
    Sketcher.Constraint("Tangent", 2, 2, 3, 2),
    Sketcher.Constraint("Tangent", 3, 1, 4, 1),
    Sketcher.Constraint("Tangent", 4, 2, 5, 2),
    Sketcher.Constraint("Tangent", 5, 1, 0, 1),
    Sketcher.Constraint("Vertical", 0),
    Sketcher.Constraint("Horizontal", 1),
    Sketcher.Constraint("Vertical", 2),
    Sketcher.Constraint("Horizontal", 4),
    Sketcher.Constraint("Equal", 3, 5),
    Sketcher.Constraint("Radius", 3, Q("0.999999 mm")),
    Sketcher.Constraint("DistanceX", 1, 2, 1, 1, Q("91 mm")),
    Sketcher.Constraint("DistanceY", 0, 2, 0, 1, Q("39 mm")),
    Sketcher.Constraint("DistanceY", -1, 1, 3, 3, Q("44.000001 mm")),
    Sketcher.Constraint("DistanceX", 3, 3, -1, 1, Q("44.500001 mm")),
])
pad5 = body.newObject("PartDesign::Pad", "Pad004")
pad5.Profile = sketch9
pad5.Length = 1
pad5.Reversed = True
doc.recompute()

fillet7 = body.newObject("PartDesign::Fillet", "Fillet006")
fillet7.Base = (pad5, edges_at(pad5, [(0, -29, 45)]))
fillet7.Radius = 1

doc.recompute()
